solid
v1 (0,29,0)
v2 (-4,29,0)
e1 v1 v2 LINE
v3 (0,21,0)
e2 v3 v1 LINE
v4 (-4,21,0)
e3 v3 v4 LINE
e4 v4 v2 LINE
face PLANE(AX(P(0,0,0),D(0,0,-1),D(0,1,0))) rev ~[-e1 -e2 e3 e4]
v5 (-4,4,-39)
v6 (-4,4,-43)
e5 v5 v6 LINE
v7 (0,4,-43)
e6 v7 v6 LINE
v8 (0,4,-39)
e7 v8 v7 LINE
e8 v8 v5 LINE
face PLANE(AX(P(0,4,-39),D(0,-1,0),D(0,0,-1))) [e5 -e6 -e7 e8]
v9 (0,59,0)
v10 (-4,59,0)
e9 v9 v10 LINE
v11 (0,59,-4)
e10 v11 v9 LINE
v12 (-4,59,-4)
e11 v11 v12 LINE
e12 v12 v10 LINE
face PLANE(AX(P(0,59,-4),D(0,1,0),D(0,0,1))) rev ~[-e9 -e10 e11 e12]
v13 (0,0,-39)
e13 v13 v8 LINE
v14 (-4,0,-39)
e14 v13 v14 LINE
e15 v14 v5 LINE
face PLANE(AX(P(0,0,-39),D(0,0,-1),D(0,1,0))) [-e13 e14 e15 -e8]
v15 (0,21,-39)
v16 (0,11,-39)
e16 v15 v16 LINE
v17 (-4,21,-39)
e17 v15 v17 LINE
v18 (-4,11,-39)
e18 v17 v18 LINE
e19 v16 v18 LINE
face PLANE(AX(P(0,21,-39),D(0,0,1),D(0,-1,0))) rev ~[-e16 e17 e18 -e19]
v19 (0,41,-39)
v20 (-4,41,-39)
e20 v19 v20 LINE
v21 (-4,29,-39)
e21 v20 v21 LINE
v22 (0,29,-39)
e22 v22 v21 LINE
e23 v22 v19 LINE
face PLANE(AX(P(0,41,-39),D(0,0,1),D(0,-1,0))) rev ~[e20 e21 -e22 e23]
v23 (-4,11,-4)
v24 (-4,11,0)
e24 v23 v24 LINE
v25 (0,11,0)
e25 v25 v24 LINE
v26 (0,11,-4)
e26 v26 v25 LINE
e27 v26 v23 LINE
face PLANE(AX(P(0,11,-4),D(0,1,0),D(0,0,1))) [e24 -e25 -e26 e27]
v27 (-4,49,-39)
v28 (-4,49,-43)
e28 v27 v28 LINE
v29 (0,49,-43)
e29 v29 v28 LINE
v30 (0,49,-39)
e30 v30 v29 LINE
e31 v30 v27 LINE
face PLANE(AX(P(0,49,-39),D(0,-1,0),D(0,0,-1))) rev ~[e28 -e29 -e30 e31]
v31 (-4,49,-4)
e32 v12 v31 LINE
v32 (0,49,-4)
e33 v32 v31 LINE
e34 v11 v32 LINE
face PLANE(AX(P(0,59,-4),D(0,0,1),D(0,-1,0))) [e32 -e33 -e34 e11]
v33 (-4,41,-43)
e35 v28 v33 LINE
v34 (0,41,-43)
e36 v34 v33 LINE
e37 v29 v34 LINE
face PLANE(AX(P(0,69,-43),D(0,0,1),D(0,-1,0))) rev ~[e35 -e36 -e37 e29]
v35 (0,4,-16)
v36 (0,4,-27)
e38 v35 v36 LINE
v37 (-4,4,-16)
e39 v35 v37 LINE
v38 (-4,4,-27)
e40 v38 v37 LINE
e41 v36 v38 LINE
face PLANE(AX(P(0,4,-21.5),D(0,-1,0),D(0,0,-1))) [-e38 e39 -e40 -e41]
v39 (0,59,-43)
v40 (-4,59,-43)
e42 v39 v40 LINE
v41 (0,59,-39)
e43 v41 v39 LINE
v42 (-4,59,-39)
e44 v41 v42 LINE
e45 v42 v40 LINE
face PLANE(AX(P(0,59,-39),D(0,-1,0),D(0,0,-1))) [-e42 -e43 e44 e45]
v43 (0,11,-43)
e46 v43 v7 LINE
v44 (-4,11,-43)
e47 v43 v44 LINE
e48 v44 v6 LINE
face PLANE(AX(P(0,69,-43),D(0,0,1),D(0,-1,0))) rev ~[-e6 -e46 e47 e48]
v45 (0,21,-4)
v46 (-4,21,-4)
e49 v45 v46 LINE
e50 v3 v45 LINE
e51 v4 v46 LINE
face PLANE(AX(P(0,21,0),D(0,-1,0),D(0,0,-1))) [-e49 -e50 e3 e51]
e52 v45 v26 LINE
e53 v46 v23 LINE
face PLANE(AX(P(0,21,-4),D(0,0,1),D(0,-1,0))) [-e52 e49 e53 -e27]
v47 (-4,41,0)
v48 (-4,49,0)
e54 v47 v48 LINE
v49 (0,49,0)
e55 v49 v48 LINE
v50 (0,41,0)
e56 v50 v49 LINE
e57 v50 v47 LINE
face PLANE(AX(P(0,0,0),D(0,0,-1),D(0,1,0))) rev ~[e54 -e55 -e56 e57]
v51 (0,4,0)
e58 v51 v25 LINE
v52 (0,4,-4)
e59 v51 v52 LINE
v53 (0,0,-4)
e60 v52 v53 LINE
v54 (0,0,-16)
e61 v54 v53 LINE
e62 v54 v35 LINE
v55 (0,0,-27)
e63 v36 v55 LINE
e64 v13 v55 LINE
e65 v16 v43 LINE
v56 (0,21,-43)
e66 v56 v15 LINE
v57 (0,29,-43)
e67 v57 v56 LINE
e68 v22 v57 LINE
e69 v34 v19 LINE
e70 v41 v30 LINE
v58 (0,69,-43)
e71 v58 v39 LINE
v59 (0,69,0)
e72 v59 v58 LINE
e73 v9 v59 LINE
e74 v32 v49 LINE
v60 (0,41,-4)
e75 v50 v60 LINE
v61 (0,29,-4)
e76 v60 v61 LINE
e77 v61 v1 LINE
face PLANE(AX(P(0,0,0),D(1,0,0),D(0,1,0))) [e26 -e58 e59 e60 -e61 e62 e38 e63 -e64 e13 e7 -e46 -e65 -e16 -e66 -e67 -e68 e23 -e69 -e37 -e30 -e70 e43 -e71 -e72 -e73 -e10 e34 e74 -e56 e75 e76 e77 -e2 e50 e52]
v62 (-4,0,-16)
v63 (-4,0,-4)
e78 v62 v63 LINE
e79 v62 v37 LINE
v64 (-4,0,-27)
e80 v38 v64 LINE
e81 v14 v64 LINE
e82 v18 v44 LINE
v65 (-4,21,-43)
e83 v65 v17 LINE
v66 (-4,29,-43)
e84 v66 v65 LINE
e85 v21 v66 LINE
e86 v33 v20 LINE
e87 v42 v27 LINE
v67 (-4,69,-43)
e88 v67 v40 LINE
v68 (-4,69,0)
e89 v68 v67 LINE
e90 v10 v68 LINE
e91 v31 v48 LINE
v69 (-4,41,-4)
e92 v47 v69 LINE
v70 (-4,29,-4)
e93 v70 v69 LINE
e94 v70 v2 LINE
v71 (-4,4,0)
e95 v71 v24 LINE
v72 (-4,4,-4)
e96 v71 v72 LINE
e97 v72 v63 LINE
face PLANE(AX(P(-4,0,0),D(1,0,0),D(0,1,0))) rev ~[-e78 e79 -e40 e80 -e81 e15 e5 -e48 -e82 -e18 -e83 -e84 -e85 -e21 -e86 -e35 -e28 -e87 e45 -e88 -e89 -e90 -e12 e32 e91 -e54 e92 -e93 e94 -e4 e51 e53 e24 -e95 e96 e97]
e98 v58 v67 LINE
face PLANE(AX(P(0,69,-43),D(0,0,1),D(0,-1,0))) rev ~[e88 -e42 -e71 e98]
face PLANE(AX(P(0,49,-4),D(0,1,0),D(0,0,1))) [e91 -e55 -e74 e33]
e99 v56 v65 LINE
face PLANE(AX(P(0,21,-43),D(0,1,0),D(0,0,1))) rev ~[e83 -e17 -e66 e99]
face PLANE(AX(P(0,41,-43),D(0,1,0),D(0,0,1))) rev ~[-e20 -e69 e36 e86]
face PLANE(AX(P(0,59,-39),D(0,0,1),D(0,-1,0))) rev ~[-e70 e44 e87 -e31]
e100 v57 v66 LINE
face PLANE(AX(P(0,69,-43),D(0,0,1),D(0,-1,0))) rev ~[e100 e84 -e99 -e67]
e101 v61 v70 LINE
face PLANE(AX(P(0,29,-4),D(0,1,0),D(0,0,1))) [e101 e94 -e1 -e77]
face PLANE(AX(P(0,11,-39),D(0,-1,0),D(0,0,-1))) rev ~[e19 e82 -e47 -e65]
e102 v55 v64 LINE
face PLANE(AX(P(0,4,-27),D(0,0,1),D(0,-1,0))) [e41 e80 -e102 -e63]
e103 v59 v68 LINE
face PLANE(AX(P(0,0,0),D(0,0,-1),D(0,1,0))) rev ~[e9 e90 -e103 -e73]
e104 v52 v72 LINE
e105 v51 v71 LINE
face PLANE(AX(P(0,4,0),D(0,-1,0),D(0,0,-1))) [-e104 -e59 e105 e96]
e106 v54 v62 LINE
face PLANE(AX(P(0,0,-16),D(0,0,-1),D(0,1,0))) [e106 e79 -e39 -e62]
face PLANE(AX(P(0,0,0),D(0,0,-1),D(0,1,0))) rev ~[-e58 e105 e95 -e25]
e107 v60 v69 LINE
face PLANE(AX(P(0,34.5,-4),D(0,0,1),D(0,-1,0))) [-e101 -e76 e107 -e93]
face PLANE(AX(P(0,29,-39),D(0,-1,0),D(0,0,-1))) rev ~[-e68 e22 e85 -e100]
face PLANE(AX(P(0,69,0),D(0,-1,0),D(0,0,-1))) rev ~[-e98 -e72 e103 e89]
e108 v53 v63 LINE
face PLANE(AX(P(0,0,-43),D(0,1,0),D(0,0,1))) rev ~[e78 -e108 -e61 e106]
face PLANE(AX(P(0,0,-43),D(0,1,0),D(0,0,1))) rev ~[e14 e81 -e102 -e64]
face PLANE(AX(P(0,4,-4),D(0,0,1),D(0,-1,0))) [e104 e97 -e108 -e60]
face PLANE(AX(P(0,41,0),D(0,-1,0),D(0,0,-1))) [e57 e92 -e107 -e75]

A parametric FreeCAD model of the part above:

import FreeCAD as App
import Part
import Sketcher
from FreeCAD import Vector
Q = App.Units.Quantity

doc = App.newDocument("Part")
body = doc.addObject("PartDesign::Body", "Body")

# Sketch on YZ plane
sketch1 = doc.addObject("Sketcher::SketchObject", "Sketch")
body.addObject(sketch1)
sketch1.AttachmentSupport = (doc.YZ_Plane, [""])
sketch1.MapMode = "FlatFace"
sketch1.addGeometry(Part.LineSegment(Vector(69, 0, 0), Vector(0, 0, 0)), False)
sketch1.addGeometry(Part.LineSegment(Vector(0, 0, 0), Vector(0, -43, 0)), False)
sketch1.addGeometry(Part.LineSegment(Vector(0, -43, 0), Vector(69, -43, 0)), False)
sketch1.addGeometry(Part.LineSegment(Vector(69, -43, 0), Vector(69, 0, 0)), False)
sketch1.addConstraint(Sketcher.Constraint("Coincident", 0, 2, 1, 1))
sketch1.addConstraint(Sketcher.Constraint("Coincident", 1, 2, 2, 1))
sketch1.addConstraint(Sketcher.Constraint("Coincident", 2, 2, 3, 1))
sketch1.addConstraint(Sketcher.Constraint("Coincident", 3, 2, 0, 1))
sketch1.addConstraint(Sketcher.Constraint("Horizontal", 0))
sketch1.addConstraint(Sketcher.Constraint("Vertical", 1))
sketch1.addConstraint(Sketcher.Constraint("Horizontal", 2))
sketch1.addConstraint(Sketcher.Constraint("Vertical", 3))
sketch1.addConstraint(Sketcher.Constraint("Coincident", 0, 2, -1, 1))
sketch1.addConstraint(Sketcher.Constraint("DistanceX", 0, 2, 0, 1, Q("69 mm")))
sketch1.addConstraint(Sketcher.Constraint("DistanceY", 1, 2, 1, 1, Q("43 mm")))
pad1 = doc.addObject("PartDesign::Pad", "Pad")
body.addObject(pad1)
pad1.Profile = sketch1
pad1.Length = 4
pad1.Reversed = True

# Sketch on YZ plane
sketch2 = doc.addObject("Sketcher::SketchObject", "Sketch001")
body.addObject(sketch2)
sketch2.AttachmentSupport = (doc.YZ_Plane, [""])
sketch2.MapMode = "FlatFace"
sketch2.addGeometry(Part.LineSegment(Vector(4, -27, 0), Vector(4, -16, 0)), False)
sketch2.addGeometry(Part.LineSegment(Vector(4, -16, 0), Vector(0, -16, 0)), False)
sketch2.addGeometry(Part.LineSegment(Vector(0, -16, 0), Vector(0, -27, 0)), False)
sketch2.addGeometry(Part.LineSegment(Vector(0, -27, 0), Vector(4, -27, 0)), False)
sketch2.addGeometry(Part.LineSegment(Vector(29, -4, 0), Vector(41, -4, 0)), False)
sketch2.addGeometry(Part.LineSegment(Vector(41, -4, 0), Vector(41, 0, 0)), False)
sketch2.addGeometry(Part.LineSegment(Vector(41, 0, 0), Vector(29, 0, 0)), False)
sketch2.addGeometry(Part.LineSegment(Vector(29, 0, 0), Vector(29, -4, 0)), False)
sketch2.addGeometry(Part.LineSegment(Vector(41, -39, 0), Vector(29, -39, 0)), False)
sketch2.addGeometry(Part.LineSegment(Vector(29, -39, 0), Vector(29, -43, 0)), False)
sketch2.addGeometry(Part.LineSegment(Vector(29, -43, 0), Vector(41, -43, 0)), False)
sketch2.addGeometry(Part.LineSegment(Vector(41, -43, 0), Vector(41, -39, 0)), False)
sketch2.addGeometry(Part.LineSegment(Vector(49, -43, 0), Vector(59, -43, 0)), False)
sketch2.addGeometry(Part.LineSegment(Vector(59, -43, 0), Vector(59, -39, 0)), False)
sketch2.addGeometry(Part.LineSegment(Vector(59, -39, 0), Vector(49, -39, 0)), False)
sketch2.addGeometry(Part.LineSegment(Vector(49, -39, 0), Vector(49, -43, 0)), False)
sketch2.addGeometry(Part.LineSegment(Vector(59, -4, 0), Vector(59, 0, 0)), False)
sketch2.addGeometry(Part.LineSegment(Vector(59, 0, 0), Vector(49, 0, 0)), False)
sketch2.addGeometry(Part.LineSegment(Vector(49, 0, 0), Vector(49, -4, 0)), False)
sketch2.addGeometry(Part.LineSegment(Vector(49, -4, 0), Vector(59, -4, 0)), False)
sketch2.addGeometry(Part.LineSegment(Vector(4, -39, 0), Vector(0, -39, 0)), False)
sketch2.addGeometry(Part.LineSegment(Vector(0, -39, 0), Vector(0, -43, 0)), False)
sketch2.addGeometry(Part.LineSegment(Vector(0, -43, 0), Vector(4, -43, 0)), False)
sketch2.addGeometry(Part.LineSegment(Vector(4, -43, 0), Vector(4, -39, 0)), False)
sketch2.addGeometry(Part.LineSegment(Vector(0, 0, 0), Vector(0, -4, 0)), False)
sketch2.addGeometry(Part.LineSegment(Vector(0, -4, 0), Vector(4, -4, 0)), False)
sketch2.addGeometry(Part.LineSegment(Vector(4, -4, 0), Vector(4, 0, 0)), False)
sketch2.addGeometry(Part.LineSegment(Vector(4, 0, 0), Vector(0, 0, 0)), False)
sketch2.addGeometry(Part.LineSegment(Vector(21, -4, 0), Vector(21, 0, 0)), False)
sketch2.addGeometry(Part.LineSegment(Vector(21, 0, 0), Vector(11, 0, 0)), False)
sketch2.addGeometry(Part.LineSegment(Vector(11, 0, 0), Vector(11, -4, 0)), False)
sketch2.addGeometry(Part.LineSegment(Vector(11, -4, 0), Vector(21, -4, 0)), False)
sketch2.addGeometry(Part.LineSegment(Vector(11, -43, 0), Vector(21, -43, 0)), False)
sketch2.addGeometry(Part.LineSegment(Vector(21, -43, 0), Vector(21, -39, 0)), False)
sketch2.addGeometry(Part.LineSegment(Vector(21, -39, 0), Vector(11, -39, 0)), False)
sketch2.addGeometry(Part.LineSegment(Vector(11, -39, 0), Vector(11, -43, 0)), False)
sketch2.addConstraint(Sketcher.Constraint("Coincident", 0, 2, 1, 1))
sketch2.addConstraint(Sketcher.Constraint("Coincident", 1, 2, 2, 1))
sketch2.addConstraint(Sketcher.Constraint("Coincident", 2, 2, 3, 1))
sketch2.addConstraint(Sketcher.Constraint("Coincident", 3, 2, 0, 1))
sketch2.addConstraint(Sketcher.Constraint("Coincident", 4, 2, 5, 1))
sketch2.addConstraint(Sketcher.Constraint("Coincident", 5, 2, 6, 1))
sketch2.addConstraint(Sketcher.Constraint("Coincident", 6, 2, 7, 1))
sketch2.addConstraint(Sketcher.Constraint("Coincident", 7, 2, 4, 1))
sketch2.addConstraint(Sketcher.Constraint("Coincident", 8, 2, 9, 1))
sketch2.addConstraint(Sketcher.Constraint("Coincident", 9, 2, 10, 1))
sketch2.addConstraint(Sketcher.Constraint("Coincident", 10, 2, 11, 1))
sketch2.addConstraint(Sketcher.Constraint("Coincident", 11, 2, 8, 1))
sketch2.addConstraint(Sketcher.Constraint("Coincident", 12, 2, 13, 1))
sketch2.addConstraint(Sketcher.Constraint("Coincident", 13, 2, 14, 1))
sketch2.addConstraint(Sketcher.Constraint("Coincident", 14, 2, 15, 1))
sketch2.addConstraint(Sketcher.Constraint("Coincident", 15, 2, 12, 1))
sketch2.addConstraint(Sketcher.Constraint("Coincident", 16, 2, 17, 1))
sketch2.addConstraint(Sketcher.Constraint("Coincident", 17, 2, 18, 1))
sketch2.addConstraint(Sketcher.Constraint("Coincident", 18, 2, 19, 1))
sketch2.addConstraint(Sketcher.Constraint("Coincident", 19, 2, 16, 1))
sketch2.addConstraint(Sketcher.Constraint("Coincident", 20, 2, 21, 1))
sketch2.addConstraint(Sketcher.Constraint("Coincident", 21, 2, 22, 1))
sketch2.addConstraint(Sketcher.Constraint("Coincident", 22, 2, 23, 1))
sketch2.addConstraint(Sketcher.Constraint("Coincident", 23, 2, 20, 1))
sketch2.addConstraint(Sketcher.Constraint("Coincident", 24, 2, 25, 1))
sketch2.addConstraint(Sketcher.Constraint("Coincident", 25, 2, 26, 1))
sketch2.addConstraint(Sketcher.Constraint("Coincident", 26, 2, 27, 1))
sketch2.addConstraint(Sketcher.Constraint("Coincident", 27, 2, 24, 1))
sketch2.addConstraint(Sketcher.Constraint("Coincident", 28, 2, 29, 1))
sketch2.addConstraint(Sketcher.Constraint("Coincident", 29, 2, 30, 1))
sketch2.addConstraint(Sketcher.Constraint("Coincident", 30, 2, 31, 1))
sketch2.addConstraint(Sketcher.Constraint("Coincident", 31, 2, 28, 1))
sketch2.addConstraint(Sketcher.Constraint("Coincident", 32, 2, 33, 1))
sketch2.addConstraint(Sketcher.Constraint("Coincident", 33, 2, 34, 1))
sketch2.addConstraint(Sketcher.Constraint("Coincident", 34, 2, 35, 1))
sketch2.addConstraint(Sketcher.Constraint("Coincident", 35, 2, 32, 1))
sketch2.addConstraint(Sketcher.Constraint("Vertical", 0))
sketch2.addConstraint(Sketcher.Constraint("Horizontal", 1))
sketch2.addConstraint(Sketcher.Constraint("Vertical", 2))
sketch2.addConstraint(Sketcher.Constraint("Horizontal", 3))
sketch2.addConstraint(Sketcher.Constraint("Horizontal", 4))
sketch2.addConstraint(Sketcher.Constraint("Vertical", 5))
sketch2.addConstraint(Sketcher.Constraint("Horizontal", 6))
sketch2.addConstraint(Sketcher.Constraint("Vertical", 7))
sketch2.addConstraint(Sketcher.Constraint("Horizontal", 8))
sketch2.addConstraint(Sketcher.Constraint("Vertical", 9))
sketch2.addConstraint(Sketcher.Constraint("Horizontal", 10))
sketch2.addConstraint(Sketcher.Constraint("Vertical", 11))
sketch2.addConstraint(Sketcher.Constraint("Horizontal", 12))
sketch2.addConstraint(Sketcher.Constraint("Vertical", 13))
sketch2.addConstraint(Sketcher.Constraint("Horizontal", 14))
sketch2.addConstraint(Sketcher.Constraint("Vertical", 15))
sketch2.addConstraint(Sketcher.Constraint("Vertical", 16))
sketch2.addConstraint(Sketcher.Constraint("Horizontal", 17))
sketch2.addConstraint(Sketcher.Constraint("Vertical", 18))
sketch2.addConstraint(Sketcher.Constraint("Horizontal", 19))
sketch2.addConstraint(Sketcher.Constraint("Horizontal", 20))
sketch2.addConstraint(Sketcher.Constraint("Vertical", 21))
sketch2.addConstraint(Sketcher.Constraint("Horizontal", 22))
sketch2.addConstraint(Sketcher.Constraint("Vertical", 23))
sketch2.addConstraint(Sketcher.Constraint("Vertical", 24))
sketch2.addConstraint(Sketcher.Constraint("Horizontal", 25))
sketch2.addConstraint(Sketcher.Constraint("Vertical", 26))
sketch2.addConstraint(Sketcher.Constraint("Horizontal", 27))
sketch2.addConstraint(Sketcher.Constraint("Vertical", 28))
sketch2.addConstraint(Sketcher.Constraint("Horizontal", 29))
sketch2.addConstraint(Sketcher.Constraint("Vertical", 30))
sketch2.addConstraint(Sketcher.Constraint("Horizontal", 31))
sketch2.addConstraint(Sketcher.Constraint("Horizontal", 32))
sketch2.addConstraint(Sketcher.Constraint("Vertical", 33))
sketch2.addConstraint(Sketcher.Constraint("Horizontal", 34))
sketch2.addConstraint(Sketcher.Constraint("Vertical", 35))
sketch2.addConstraint(Sketcher.Constraint("Coincident", 27, 2, -1, 1))
sketch2.addConstraint(Sketcher.Constraint("PointOnObject", 1, 2, -2))
sketch2.addConstraint(Sketcher.Constraint("PointOnObject", 5, 2, -1))
sketch2.addConstraint(Sketcher.Constraint("PointOnObject", 16, 2, -1))
sketch2.addConstraint(Sketcher.Constraint("PointOnObject", 20, 2, -2))
sketch2.addConstraint(Sketcher.Constraint("PointOnObject", 28, 2, -1))
sketch2.addConstraint(Sketcher.Constraint("Horizontal", 10, 2, 12, 2))
sketch2.addConstraint(Sketcher.Constraint("Horizontal", 11, 2, 13, 2))
sketch2.addConstraint(Sketcher.Constraint("Horizontal", 7, 2, 18, 2))
sketch2.addConstraint(Sketcher.Constraint("Horizontal", 14, 2, 20, 2))
sketch2.addConstraint(Sketcher.Constraint("Horizontal", 15, 2, 21, 2))
sketch2.addConstraint(Sketcher.Constraint("Horizontal", 19, 2, 24, 2))
sketch2.addConstraint(Sketcher.Constraint("Horizontal", 25, 2, 30, 2))
sketch2.addConstraint(Sketcher.Constraint("Horizontal", 22, 2, 32, 2))
sketch2.addConstraint(Sketcher.Constraint("Horizontal", 23, 2, 33, 2))
sketch2.addConstraint(Sketcher.Constraint("Vertical", 7, 2, 8, 2))
sketch2.addConstraint(Sketcher.Constraint("Vertical", 5, 2, 10, 2))
sketch2.addConstraint(Sketcher.Constraint("Vertical", 13, 2, 16, 2))
sketch2.addConstraint(Sketcher.Constraint("Vertical", 15, 2, 17, 2))
sketch2.addConstraint(Sketcher.Constraint("Vertical", 3, 2, 22, 2))
sketch2.addConstraint(Sketcher.Constraint("Vertical", 23, 2, 25, 2))
sketch2.addConstraint(Sketcher.Constraint("Vertical", 31, 2, 32, 2))
sketch2.addConstraint(Sketcher.Constraint("Vertical", 30, 2, 34, 2))
sketch2.addConstraint(Sketcher.Constraint("Equal", 19, 29))
sketch2.addConstraint(Sketcher.Constraint("Equal", 27, 5))
sketch2.addConstraint(Sketcher.Constraint("Equal", 7, 9))
sketch2.addConstraint(Sketcher.Constraint("DistanceX", 1, 2, 1, 1, Q("4 mm")))
sketch2.addConstraint(Sketcher.Constraint("DistanceX", 4, 1, 4, 2, Q("12 mm")))
sketch2.addConstraint(Sketcher.Constraint("DistanceX", 12, 1, 12, 2, Q("10 mm")))
sketch2.addConstraint(Sketcher.Constraint("DistanceY", 0, 2, 4, 2, Q("12 mm")))
sketch2.addConstraint(Sketcher.Constraint("DistanceY", 8, 2, 3, 2, Q("12 mm")))
sketch2.addConstraint(Sketcher.Constraint("DistanceX", 11, 2, 14, 2, Q("8 mm")))
sketch2.addConstraint(Sketcher.Constraint("DistanceX", 28, 2, 6, 2, Q("8 mm")))
sketch2.addConstraint(Sketcher.Constraint("DistanceY", 0, 1, 0, 2, Q("11 mm")))
sketch2.addConstraint(Sketcher.Constraint("DistanceX", -1, 1, 4, 2, Q("41 mm")))
pocket1 = doc.addObject("PartDesign::Pocket", "Pocket")
body.addObject(pocket1)
pocket1.Profile = sketch2
pocket1.Length = 4

doc.recompute()
